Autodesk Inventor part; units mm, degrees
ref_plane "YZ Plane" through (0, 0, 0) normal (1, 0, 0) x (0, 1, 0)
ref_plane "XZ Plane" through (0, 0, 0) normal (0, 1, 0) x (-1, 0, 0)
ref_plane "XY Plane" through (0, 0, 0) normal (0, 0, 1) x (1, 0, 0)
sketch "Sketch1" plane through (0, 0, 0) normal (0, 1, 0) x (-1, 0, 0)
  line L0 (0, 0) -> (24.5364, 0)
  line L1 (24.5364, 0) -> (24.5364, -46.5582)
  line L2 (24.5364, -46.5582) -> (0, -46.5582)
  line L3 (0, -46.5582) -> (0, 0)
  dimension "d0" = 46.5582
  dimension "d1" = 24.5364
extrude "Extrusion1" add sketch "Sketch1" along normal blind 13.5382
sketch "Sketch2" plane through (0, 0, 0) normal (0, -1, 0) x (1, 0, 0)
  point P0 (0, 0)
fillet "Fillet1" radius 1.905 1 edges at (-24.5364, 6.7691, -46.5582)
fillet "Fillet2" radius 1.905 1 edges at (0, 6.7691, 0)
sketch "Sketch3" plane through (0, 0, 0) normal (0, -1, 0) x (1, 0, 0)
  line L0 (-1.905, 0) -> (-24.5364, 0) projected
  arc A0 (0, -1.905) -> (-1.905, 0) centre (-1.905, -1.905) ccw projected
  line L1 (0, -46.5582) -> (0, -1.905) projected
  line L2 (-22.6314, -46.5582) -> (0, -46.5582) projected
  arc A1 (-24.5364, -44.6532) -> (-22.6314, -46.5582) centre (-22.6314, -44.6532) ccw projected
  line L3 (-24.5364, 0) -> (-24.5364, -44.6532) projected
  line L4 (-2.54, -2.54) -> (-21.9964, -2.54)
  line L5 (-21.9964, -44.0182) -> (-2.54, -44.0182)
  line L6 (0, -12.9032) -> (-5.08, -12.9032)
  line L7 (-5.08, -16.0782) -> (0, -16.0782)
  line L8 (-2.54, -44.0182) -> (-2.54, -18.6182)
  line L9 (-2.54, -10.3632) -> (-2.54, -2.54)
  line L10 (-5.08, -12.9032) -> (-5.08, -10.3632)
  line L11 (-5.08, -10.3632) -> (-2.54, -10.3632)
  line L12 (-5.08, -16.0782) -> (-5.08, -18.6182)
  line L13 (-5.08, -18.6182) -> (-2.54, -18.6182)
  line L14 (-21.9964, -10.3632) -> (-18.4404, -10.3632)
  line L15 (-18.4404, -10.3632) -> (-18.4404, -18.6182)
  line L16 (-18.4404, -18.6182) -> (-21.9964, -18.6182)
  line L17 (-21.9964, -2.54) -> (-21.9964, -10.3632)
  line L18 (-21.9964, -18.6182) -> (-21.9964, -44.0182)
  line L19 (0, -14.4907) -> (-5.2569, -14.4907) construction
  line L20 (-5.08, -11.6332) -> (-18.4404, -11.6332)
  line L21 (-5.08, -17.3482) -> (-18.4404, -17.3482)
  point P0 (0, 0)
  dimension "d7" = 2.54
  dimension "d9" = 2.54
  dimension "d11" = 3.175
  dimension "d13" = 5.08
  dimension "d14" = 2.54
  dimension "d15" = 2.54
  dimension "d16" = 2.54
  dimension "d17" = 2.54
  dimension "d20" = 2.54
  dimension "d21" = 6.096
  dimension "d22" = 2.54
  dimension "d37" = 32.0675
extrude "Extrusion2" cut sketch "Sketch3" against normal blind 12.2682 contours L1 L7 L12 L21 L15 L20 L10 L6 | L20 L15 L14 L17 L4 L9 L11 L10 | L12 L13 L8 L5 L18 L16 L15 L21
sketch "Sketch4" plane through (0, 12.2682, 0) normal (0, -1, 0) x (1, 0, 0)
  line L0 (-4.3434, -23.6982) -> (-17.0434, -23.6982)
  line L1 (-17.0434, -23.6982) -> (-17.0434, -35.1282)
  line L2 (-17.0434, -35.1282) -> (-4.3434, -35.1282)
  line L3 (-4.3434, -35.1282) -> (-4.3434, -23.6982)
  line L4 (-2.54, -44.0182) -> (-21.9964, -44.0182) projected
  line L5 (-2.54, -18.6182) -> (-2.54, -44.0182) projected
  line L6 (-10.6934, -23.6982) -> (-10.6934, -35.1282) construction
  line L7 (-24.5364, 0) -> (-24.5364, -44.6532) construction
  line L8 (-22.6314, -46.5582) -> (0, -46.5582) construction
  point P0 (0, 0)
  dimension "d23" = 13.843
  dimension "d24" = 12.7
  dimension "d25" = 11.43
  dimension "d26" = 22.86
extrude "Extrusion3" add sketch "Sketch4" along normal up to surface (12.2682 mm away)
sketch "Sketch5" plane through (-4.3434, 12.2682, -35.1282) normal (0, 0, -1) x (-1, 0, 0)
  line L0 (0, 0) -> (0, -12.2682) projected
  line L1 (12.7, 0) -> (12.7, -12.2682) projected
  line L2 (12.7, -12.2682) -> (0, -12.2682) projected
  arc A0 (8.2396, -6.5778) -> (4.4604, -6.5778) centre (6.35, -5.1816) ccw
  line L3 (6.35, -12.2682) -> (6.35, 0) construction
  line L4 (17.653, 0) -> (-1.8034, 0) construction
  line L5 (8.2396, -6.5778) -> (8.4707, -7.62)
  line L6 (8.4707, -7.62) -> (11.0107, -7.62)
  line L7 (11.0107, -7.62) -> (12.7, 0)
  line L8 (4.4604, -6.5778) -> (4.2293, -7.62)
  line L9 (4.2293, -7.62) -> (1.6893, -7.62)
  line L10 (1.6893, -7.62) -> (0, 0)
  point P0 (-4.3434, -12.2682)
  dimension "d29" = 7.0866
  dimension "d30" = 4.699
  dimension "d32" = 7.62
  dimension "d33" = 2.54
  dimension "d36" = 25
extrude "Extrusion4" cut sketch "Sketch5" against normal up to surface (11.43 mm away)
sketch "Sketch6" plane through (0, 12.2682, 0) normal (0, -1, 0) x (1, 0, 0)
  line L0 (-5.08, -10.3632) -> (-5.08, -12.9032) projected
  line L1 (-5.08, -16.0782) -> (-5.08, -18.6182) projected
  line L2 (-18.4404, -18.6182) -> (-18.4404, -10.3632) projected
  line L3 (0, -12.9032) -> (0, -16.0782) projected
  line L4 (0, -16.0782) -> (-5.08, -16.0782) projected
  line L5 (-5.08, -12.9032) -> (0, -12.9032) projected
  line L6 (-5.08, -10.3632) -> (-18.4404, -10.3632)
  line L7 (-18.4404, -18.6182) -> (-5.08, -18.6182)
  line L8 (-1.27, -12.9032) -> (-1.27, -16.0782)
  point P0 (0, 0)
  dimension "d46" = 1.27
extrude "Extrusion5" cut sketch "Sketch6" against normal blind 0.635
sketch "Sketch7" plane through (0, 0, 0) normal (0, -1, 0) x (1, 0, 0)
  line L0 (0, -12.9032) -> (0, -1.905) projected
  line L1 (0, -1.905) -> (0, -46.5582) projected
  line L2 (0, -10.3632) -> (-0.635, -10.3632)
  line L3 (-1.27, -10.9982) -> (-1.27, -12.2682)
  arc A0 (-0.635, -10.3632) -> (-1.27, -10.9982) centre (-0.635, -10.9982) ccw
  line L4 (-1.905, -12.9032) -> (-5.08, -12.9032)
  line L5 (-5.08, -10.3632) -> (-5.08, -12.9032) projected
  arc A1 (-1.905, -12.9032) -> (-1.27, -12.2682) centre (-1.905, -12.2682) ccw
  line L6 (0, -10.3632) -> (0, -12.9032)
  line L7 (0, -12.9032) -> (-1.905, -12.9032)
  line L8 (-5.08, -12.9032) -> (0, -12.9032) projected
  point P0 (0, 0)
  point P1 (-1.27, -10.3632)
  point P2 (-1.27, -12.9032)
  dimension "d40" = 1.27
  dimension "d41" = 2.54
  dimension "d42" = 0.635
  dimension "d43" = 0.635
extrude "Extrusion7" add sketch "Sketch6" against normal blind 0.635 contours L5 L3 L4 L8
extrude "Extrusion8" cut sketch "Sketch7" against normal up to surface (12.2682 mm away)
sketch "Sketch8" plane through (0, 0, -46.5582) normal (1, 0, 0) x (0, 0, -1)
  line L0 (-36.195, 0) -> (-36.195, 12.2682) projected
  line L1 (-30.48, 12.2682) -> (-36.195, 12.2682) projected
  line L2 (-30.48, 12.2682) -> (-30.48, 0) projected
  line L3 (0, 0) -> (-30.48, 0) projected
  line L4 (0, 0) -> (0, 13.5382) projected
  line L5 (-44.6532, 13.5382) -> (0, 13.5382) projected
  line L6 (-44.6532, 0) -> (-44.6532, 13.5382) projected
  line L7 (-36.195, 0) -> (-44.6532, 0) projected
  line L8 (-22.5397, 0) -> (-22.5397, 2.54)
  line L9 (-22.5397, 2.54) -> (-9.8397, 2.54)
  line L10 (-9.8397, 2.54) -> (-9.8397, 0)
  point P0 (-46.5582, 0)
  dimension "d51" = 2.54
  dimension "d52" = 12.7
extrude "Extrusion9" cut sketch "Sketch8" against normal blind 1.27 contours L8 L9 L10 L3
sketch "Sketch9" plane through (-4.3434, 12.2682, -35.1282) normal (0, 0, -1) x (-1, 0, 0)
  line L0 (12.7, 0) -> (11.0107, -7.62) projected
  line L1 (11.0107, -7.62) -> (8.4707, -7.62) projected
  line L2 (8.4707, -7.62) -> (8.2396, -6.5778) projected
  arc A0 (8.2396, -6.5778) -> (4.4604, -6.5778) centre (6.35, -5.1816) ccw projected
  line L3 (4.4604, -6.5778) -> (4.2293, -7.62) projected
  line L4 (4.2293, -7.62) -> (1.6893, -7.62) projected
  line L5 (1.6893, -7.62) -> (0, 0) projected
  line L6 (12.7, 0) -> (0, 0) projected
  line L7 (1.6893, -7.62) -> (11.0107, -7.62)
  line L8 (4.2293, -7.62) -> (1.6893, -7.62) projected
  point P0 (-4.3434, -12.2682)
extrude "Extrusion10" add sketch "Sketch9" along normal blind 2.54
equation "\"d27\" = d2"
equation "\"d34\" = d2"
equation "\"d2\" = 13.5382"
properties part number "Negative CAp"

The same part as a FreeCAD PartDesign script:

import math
import FreeCAD as App
import Part
import Sketcher
from FreeCAD import Vector
Q = App.Units.Quantity


def edges_at(feature, points):
    """Names of the edges that pass closest to the given points."""
    edges = feature.Shape.Edges
    near = lambda p: min(range(len(edges)), key=lambda i: edges[i].distToShape(Part.Vertex(*p))[0])
    return sorted({f"Edge{near(p) + 1}" for p in points})

doc = App.newDocument("Part")
body = doc.addObject("PartDesign::Body", "Body")

# Sketch on XZ plane
sketch1 = doc.addObject("Sketcher::SketchObject", "Sketch")
body.addObject(sketch1)
sketch1.AttachmentSupport = (doc.XZ_Plane, [""])
sketch1.MapMode = "FlatFace"
sketch1.addGeometry([
    Part.LineSegment(Vector(-25, 0, 0), Vector(0, 0, 0)),
    Part.LineSegment(Vector(0, 0, 0), Vector(0, -47, 0)),
    Part.LineSegment(Vector(0, -47, 0), Vector(-25, -47, 0)),
    Part.LineSegment(Vector(-25, -47, 0), Vector(-25, 0, 0)),
], False)
sketch1.addConstraint([
    Sketcher.Constraint("Coincident", 0, 2, 1, 1),
    Sketcher.Constraint("Coincident", 1, 2, 2, 1),
    Sketcher.Constraint("Coincident", 2, 2, 3, 1),
    Sketcher.Constraint("Coincident", 3, 2, 0, 1),
    Sketcher.Constraint("Horizontal", 0),
    Sketcher.Constraint("Vertical", 1),
    Sketcher.Constraint("Horizontal", 2),
    Sketcher.Constraint("Vertical", 3),
    Sketcher.Constraint("Coincident", 0, 2, -1, 1),
    Sketcher.Constraint("DistanceX", 0, 1, 0, 2, Q("0.966 in")),
    Sketcher.Constraint("DistanceY", 1, 2, 1, 1, Q("1.833 in")),
])
pad1 = doc.addObject("PartDesign::Pad", "Pad")
body.addObject(pad1)
pad1.Profile = sketch1
pad1.Length = Q("0.533 in")
pad1.Reversed = True
doc.recompute()

fillet = doc.addObject("PartDesign::Fillet", "Fillet")
body.addObject(fillet)
fillet.Base = (pad1, edges_at(pad1, [(-24.536, 6.769, -46.558)]))
fillet.Radius = Q("0.075 in")
doc.recompute()

fillet2 = doc.addObject("PartDesign::Fillet", "Fillet001")
body.addObject(fillet2)
fillet2.Base = (fillet, edges_at(fillet, [(0, 6.769, 0)]))
fillet2.Radius = Q("0.075 in")

# Sketch on XZ plane
sketch2 = doc.addObject("Sketcher::SketchObject", "Sketch001")
body.addObject(sketch2)
sketch2.AttachmentSupport = (doc.XZ_Plane, [""])
sketch2.MapMode = "FlatFace"
sketch2.addGeometry([
    Part.LineSegment(Vector(0, -16.1, 0), Vector(0, -12.9, 0)),  # 0
    Part.LineSegment(Vector(0, -12.9, 0), Vector(-5.1, -12.9, 0)),  # 1
    Part.LineSegment(Vector(-5.1, -12.9, 0), Vector(-5.1, -10.4, 0)),  # 2
    Part.LineSegment(Vector(-5.1, -10.4, 0), Vector(-2.5, -10.4, 0)),  # 3
    Part.LineSegment(Vector(-2.5, -10.4, 0), Vector(-2.5, -2.5, 0)),  # 4
    Part.LineSegment(Vector(-2.5, -2.5, 0), Vector(-22, -2.5, 0)),  # 5
    Part.LineSegment(Vector(-22, -2.5, 0), Vector(-22, -10.4, 0)),  # 6
    Part.LineSegment(Vector(-22, -10.4, 0), Vector(-18.4, -10.4, 0)),  # 7
    Part.LineSegment(Vector(-18.4, -10.4, 0), Vector(-18.4, -18.6, 0)),  # 8
    Part.LineSegment(Vector(-18.4, -18.6, 0), Vector(-22, -18.6, 0)),  # 9
    Part.LineSegment(Vector(-22, -18.6, 0), Vector(-22, -44, 0)),  # 10
    Part.LineSegment(Vector(-22, -44, 0), Vector(-2.5, -44, 0)),  # 11
    Part.LineSegment(Vector(-2.5, -44, 0), Vector(-2.5, -18.6, 0)),  # 12
    Part.LineSegment(Vector(-2.5, -18.6, 0), Vector(-5.1, -18.6, 0)),  # 13
    Part.LineSegment(Vector(-5.1, -18.6, 0), Vector(-5.1, -16.1, 0)),  # 14
    Part.LineSegment(Vector(-5.1, -16.1, 0), Vector(0, -16.1, 0)),  # 15
], False)
sketch2.addConstraint([
    Sketcher.Constraint("Coincident", 0, 2, 1, 1),
    Sketcher.Constraint("Coincident", 1, 2, 2, 1),
    Sketcher.Constraint("Coincident", 2, 2, 3, 1),
    Sketcher.Constraint("Coincident", 3, 2, 4, 1),
    Sketcher.Constraint("Coincident", 4, 2, 5, 1),
    Sketcher.Constraint("Coincident", 5, 2, 6, 1),
    Sketcher.Constraint("Coincident", 6, 2, 7, 1),
    Sketcher.Constraint("Coincident", 7, 2, 8, 1),
    Sketcher.Constraint("Coincident", 8, 2, 9, 1),
    Sketcher.Constraint("Coincident", 9, 2, 10, 1),
    Sketcher.Constraint("Coincident", 10, 2, 11, 1),
    Sketcher.Constraint("Coincident", 11, 2, 12, 1),
    Sketcher.Constraint("Coincident", 12, 2, 13, 1),
    Sketcher.Constraint("Coincident", 13, 2, 14, 1),
    Sketcher.Constraint("Coincident", 14, 2, 15, 1),
    Sketcher.Constraint("Coincident", 15, 2, 0, 1),
    Sketcher.Constraint("Vertical", 0),
    Sketcher.Constraint("Horizontal", 1),
    Sketcher.Constraint("Vertical", 2),
    Sketcher.Constraint("Horizontal", 3),
    Sketcher.Constraint("Vertical", 4),
    Sketcher.Constraint("Horizontal", 5),
    Sketcher.Constraint("Vertical", 6),
    Sketcher.Constraint("Horizontal", 7),
    Sketcher.Constraint("Vertical", 8),
    Sketcher.Constraint("Horizontal", 9),
    Sketcher.Constraint("Vertical", 10),
    Sketcher.Constraint("Horizontal", 11),
    Sketcher.Constraint("Vertical", 12),
    Sketcher.Constraint("Horizontal", 13),
    Sketcher.Constraint("Vertical", 14),
    Sketcher.Constraint("Horizontal", 15),
    Sketcher.Constraint("PointOnObject", 0, 2, -2),
    Sketcher.Constraint("Horizontal", 3, 2, 6, 2),
    Sketcher.Constraint("Horizontal", 9, 2, 12, 2),
    Sketcher.Constraint("Vertical", 6, 2, 9, 2),
    Sketcher.Constraint("Vertical", 4, 2, 11, 2),
    Sketcher.Constraint("Vertical", 2, 2, 13, 2),
    Sketcher.Constraint("Equal", 13, 2),
    Sketcher.Constraint("Equal", 2, 14),
    Sketcher.Constraint("DistanceX", 1, 2, 1, 1, Q("0.2 in")),
    Sketcher.Constraint("DistanceX", 3, 1, 3, 2, Q("0.1 in")),
    Sketcher.Constraint("DistanceY", 4, 2, -1, 1, Q("0.1 in")),
    Sketcher.Constraint("DistanceY", 0, 1, 0, 2, Q("0.125 in")),
    Sketcher.Constraint("DistanceY", 10, 2, 10, 1, Q("1 in")),
    Sketcher.Constraint("DistanceX", 7, 1, 7, 2, Q("0.14 in")),
    Sketcher.Constraint("DistanceX", 5, 2, 5, 1, Q("0.766 in")),
    Sketcher.Constraint("DistanceY", 4, 1, 4, 2, Q("0.308 in")),
])
pocket1 = doc.addObject("PartDesign::Pocket", "Pocket")
body.addObject(pocket1)
pocket1.Profile = sketch2
pocket1.Length = Q("0.483 in")

# Sketch on XZ plane
sketch3 = doc.addObject("Sketcher::SketchObject", "Sketch002")
body.addObject(sketch3)
sketch3.AttachmentSupport = (doc.XZ_Plane, [""])
sketch3.MapMode = "FlatFace"
sketch3.AttachmentOffset = App.Placement(Vector(0, 0, -0.483 * 25.4), App.Rotation())
sketch3.addGeometry([
    Part.LineSegment(Vector(-4, -35, 0), Vector(-4, -24, 0)),
    Part.LineSegment(Vector(-4, -24, 0), Vector(-17, -24, 0)),
    Part.LineSegment(Vector(-17, -24, 0), Vector(-17, -35, 0)),
    Part.LineSegment(Vector(-17, -35, 0), Vector(-4, -35, 0)),
], False)
sketch3.addConstraint([
    Sketcher.Constraint("Coincident", 0, 2, 1, 1),
    Sketcher.Constraint("Coincident", 1, 2, 2, 1),
    Sketcher.Constraint("Coincident", 2, 2, 3, 1),
    Sketcher.Constraint("Coincident", 3, 2, 0, 1),
    Sketcher.Constraint("Vertical", 0),
    Sketcher.Constraint("Horizontal", 1),
    Sketcher.Constraint("Vertical", 2),
    Sketcher.Constraint("Horizontal", 3),
    Sketcher.Constraint("DistanceX", 1, 2, 1, 1, Q("0.5 in")),
    Sketcher.Constraint("DistanceY", 0, 1, 0, 2, Q("0.45 in")),
    Sketcher.Constraint("DistanceX", 0, 2, -1, 1, Q("0.171 in")),
    Sketcher.Constraint("DistanceY", 0, 2, -1, 1, Q("0.933 in")),
])
pad2 = doc.addObject("PartDesign::Pad", "Pad001")
body.addObject(pad2)
pad2.Profile = sketch3
pad2.Length = Q("0.483 in")

# Sketch on XY plane
sketch4 = doc.addObject("Sketcher::SketchObject", "Sketch003")
body.addObject(sketch4)
sketch4.AttachmentSupport = (doc.XY_Plane, [""])
sketch4.MapMode = "FlatFace"
sketch4.AttachmentOffset = App.Placement(Vector(0, 0, -1.383 * 25.4), App.Rotation())
sketch4.addGeometry([
    Part.LineSegment(Vector(-6, 4.6, 0), Vector(-4.3, 12.3, 0)),  # 0
    Part.LineSegment(Vector(-4.3, 12.3, 0), Vector(-4.3, 0, 0)),  # 1
    Part.LineSegment(Vector(-4.3, 0, 0), Vector(-17, 0, 0)),  # 2
    Part.LineSegment(Vector(-17, 0, 0), Vector(-17, 12.3, 0)),  # 3
    Part.LineSegment(Vector(-17, 12.3, 0), Vector(-15.4, 4.6, 0)),  # 4
    Part.LineSegment(Vector(-15.4, 4.6, 0), Vector(-12.8, 4.6, 0)),  # 5
    Part.LineSegment(Vector(-12.8, 4.6, 0), Vector(-12.6, 5.7, 0)),  # 6
    Part.ArcOfCircle(Part.Circle(Vector(-10.7, 7.1, 0), Vector(0, 0, 1), 2.3), math.radians(-36), math.radians(216)),  # 7
    Part.LineSegment(Vector(-8.8, 5.7, 0), Vector(-8.6, 4.6, 0)),  # 8
    Part.LineSegment(Vector(-8.6, 4.6, 0), Vector(-6, 4.6, 0)),  # 9
], False)
sketch4.addConstraint([
    Sketcher.Constraint("Coincident", 0, 2, 1, 1),
    Sketcher.Constraint("Coincident", 1, 2, 2, 1),
    Sketcher.Constraint("Coincident", 2, 2, 3, 1),
    Sketcher.Constraint("Coincident", 3, 2, 4, 1),
    Sketcher.Constraint("Coincident", 4, 2, 5, 1),
    Sketcher.Constraint("Coincident", 5, 2, 6, 1),
    Sketcher.Constraint("Coincident", 6, 2, 7, 2),
    Sketcher.Constraint("Coincident", 7, 1, 8, 1),
    Sketcher.Constraint("Coincident", 8, 2, 9, 1),
    Sketcher.Constraint("Coincident", 9, 2, 0, 1),
    Sketcher.Constraint("Vertical", 1),
    Sketcher.Constraint("Horizontal", 2),
    Sketcher.Constraint("Vertical", 3),
    Sketcher.Constraint("Horizontal", 5),
    Sketcher.Constraint("Horizontal", 9),
    Sketcher.Constraint("PointOnObject", 1, 2, -1),
    Sketcher.Constraint("Parallel", 0, 6),
    Sketcher.Constraint("Parallel", 4, 8),
    Sketcher.Constraint("Horizontal", 0, 2, 3, 2),
    Sketcher.Constraint("Horizontal", 6, 2, 7, 1),
    Sketcher.Constraint("Horizontal", 5, 2, 8, 2),
    Sketcher.Constraint("Equal", 5, 9),
    Sketcher.Constraint("Equal", 0, 4),
    Sketcher.Constraint("DistanceX", 5, 1, 5, 2, Q("0.1 in")),
    Sketcher.Constraint("Radius", 7, Q("0.0925 in")),
    Sketcher.Constraint("DistanceY", 4, 2, 3, 2, Q("0.3 in")),
    Sketcher.Constraint("DistanceX", 2, 2, 2, 1, Q("0.5 in")),
    Sketcher.Constraint("DistanceY", -1, 1, 7, 3, Q("0.279 in")),
    Sketcher.Constraint("Angle", 0, Q("77.5 deg")),
    Sketcher.Constraint("DistanceY", 1, 2, 1, 1, Q("0.483 in")),
    Sketcher.Constraint("DistanceX", 7, 3, -1, 1, Q("0.421 in")),
])
pocket2 = doc.addObject("PartDesign::Pocket", "Pocket001")
body.addObject(pocket2)
pocket2.Profile = sketch4
pocket2.Length = Q("0.45 in")
pocket2.Reversed = True

# Sketch on XZ plane
sketch5 = doc.addObject("Sketcher::SketchObject", "Sketch004")
body.addObject(sketch5)
sketch5.AttachmentSupport = (doc.XZ_Plane, [""])
sketch5.MapMode = "FlatFace"
sketch5.AttachmentOffset = App.Placement(Vector(0, 0, -0.483 * 25.4), App.Rotation())
sketch5.addGeometry([
    Part.LineSegment(Vector(-5.1, -12.9, 0), Vector(-5.1, -10.4, 0)),  # 0
    Part.LineSegment(Vector(-5.1, -10.4, 0), Vector(-18.4, -10.4, 0)),  # 1
    Part.LineSegment(Vector(-18.4, -10.4, 0), Vector(-18.4, -18.6, 0)),  # 2
    Part.LineSegment(Vector(-18.4, -18.6, 0), Vector(-5.1, -18.6, 0)),  # 3
    Part.LineSegment(Vector(-5.1, -18.6, 0), Vector(-5.1, -16.1, 0)),  # 4
    Part.LineSegment(Vector(-5.1, -16.1, 0), Vector(0, -16.1, 0)),  # 5
    Part.LineSegment(Vector(0, -16.1, 0), Vector(0, -12.9, 0)),  # 6
    Part.LineSegment(Vector(0, -12.9, 0), Vector(-5.1, -12.9, 0)),  # 7
], False)
sketch5.addConstraint([
    Sketcher.Constraint("Coincident", 0, 2, 1, 1),
    Sketcher.Constraint("Coincident", 1, 2, 2, 1),
    Sketcher.Constraint("Coincident", 2, 2, 3, 1),
    Sketcher.Constraint("Coincident", 3, 2, 4, 1),
    Sketcher.Constraint("Coincident", 4, 2, 5, 1),
    Sketcher.Constraint("Coincident", 5, 2, 6, 1),
    Sketcher.Constraint("Coincident", 6, 2, 7, 1),
    Sketcher.Constraint("Coincident", 7, 2, 0, 1),
    Sketcher.Constraint("Vertical", 0),
    Sketcher.Constraint("Horizontal", 1),
    Sketcher.Constraint("Vertical", 2),
    Sketcher.Constraint("Horizontal", 3),
    Sketcher.Constraint("Vertical", 4),
    Sketcher.Constraint("Horizontal", 5),
    Sketcher.Constraint("Vertical", 6),
    Sketcher.Constraint("Horizontal", 7),
    Sketcher.Constraint("PointOnObject", 5, 2, -2),
    Sketcher.Constraint("Vertical", 0, 2, 3, 2),
    Sketcher.Constraint("Equal", 0, 4),
    Sketcher.Constraint("DistanceX", 5, 1, 5, 2, Q("0.2 in")),
    Sketcher.Constraint("DistanceY", 0, 1, 0, 2, Q("0.1 in")),
    Sketcher.Constraint("DistanceX", 1, 2, 1, 1, Q("0.526 in")),
    Sketcher.Constraint("DistanceY", 2, 2, 2, 1, Q("0.325 in")),
    Sketcher.Constraint("DistanceY", 0, 2, -1, 1, Q("0.408 in")),
])
pocket3 = doc.addObject("PartDesign::Pocket", "Pocket002")
body.addObject(pocket3)
pocket3.Profile = sketch5
pocket3.Length = Q("0.025 in")

# Sketch on XZ plane
sketch6 = doc.addObject("Sketcher::SketchObject", "Sketch005")
body.addObject(sketch6)
sketch6.AttachmentSupport = (doc.XZ_Plane, [""])
sketch6.MapMode = "FlatFace"
sketch6.AttachmentOffset = App.Placement(Vector(0, 0, -0.483 * 25.4), App.Rotation())
sketch6.addGeometry([
    Part.LineSegment(Vector(0, -12.9, 0), Vector(-1.3, -12.9, 0)),
    Part.LineSegment(Vector(-1.3, -12.9, 0), Vector(-1.3, -16.1, 0)),
    Part.LineSegment(Vector(-1.3, -16.1, 0), Vector(0, -16.1, 0)),
    Part.LineSegment(Vector(0, -16.1, 0), Vector(0, -12.9, 0)),
], False)
sketch6.addConstraint([
    Sketcher.Constraint("Coincident", 0, 2, 1, 1),
    Sketcher.Constraint("Coincident", 1, 2, 2, 1),
    Sketcher.Constraint("Coincident", 2, 2, 3, 1),
    Sketcher.Constraint("Coincident", 3, 2, 0, 1),
    Sketcher.Constraint("Horizontal", 0),
    Sketcher.Constraint("Vertical", 1),
    Sketcher.Constraint("Horizontal", 2),
    Sketcher.Constraint("Vertical", 3),
    Sketcher.Constraint("PointOnObject", 2, 2, -2),
    Sketcher.Constraint("DistanceX", 0, 2, 0, 1, Q("0.05 in")),
    Sketcher.Constraint("DistanceY", 1, 2, 1, 1, Q("0.125 in")),
    Sketcher.Constraint("DistanceY", 0, 2, -1, 1, Q("0.508 in")),
])
pad3 = doc.addObject("PartDesign::Pad", "Pad002")
body.addObject(pad3)
pad3.Profile = sketch6
pad3.Length = Q("0.025 in")
pad3.Reversed = True

# Sketch on XZ plane
sketch7 = doc.addObject("Sketcher::SketchObject", "Sketch006")
body.addObject(sketch7)
sketch7.AttachmentSupport = (doc.XZ_Plane, [""])
sketch7.MapMode = "FlatFace"
sketch7.addGeometry([
    Part.LineSegment(Vector(-1.9, -12.9, 0), Vector(0, -12.9, 0)),  # 0
    Part.LineSegment(Vector(0, -12.9, 0), Vector(0, -10.4, 0)),  # 1
    Part.LineSegment(Vector(0, -10.4, 0), Vector(-0.6, -10.4, 0)),  # 2
    Part.ArcOfCircle(Part.Circle(Vector(-0.6, -11, 0), Vector(0, 0, 1), 0.6), math.radians(90), math.radians(180)),  # 3
    Part.LineSegment(Vector(-1.3, -11, 0), Vector(-1.3, -12.3, 0)),  # 4
    Part.ArcOfCircle(Part.Circle(Vector(-1.9, -12.3, 0), Vector(0, 0, 1), 0.6), math.radians(-90), math.radians(0)),  # 5
], False)
sketch7.addConstraint([
    Sketcher.Constraint("Coincident", 0, 2, 1, 1),
    Sketcher.Constraint("Coincident", 1, 2, 2, 1),
    Sketcher.Constraint("Tangent", 2, 2, 3, 1),
    Sketcher.Constraint("Tangent", 3, 2, 4, 1),
    Sketcher.Constraint("Tangent", 4, 2, 5, 2),
    Sketcher.Constraint("Tangent", 5, 1, 0, 1),
    Sketcher.Constraint("Horizontal", 0),
    Sketcher.Constraint("Vertical", 1),
    Sketcher.Constraint("Horizontal", 2),
    Sketcher.Constraint("Vertical", 4),
    Sketcher.Constraint("Equal", 3, 5),
    Sketcher.Constraint("PointOnObject", 0, 2, -2),
    Sketcher.Constraint("DistanceY", 1, 1, 1, 2, Q("0.1 in")),
    Sketcher.Constraint("Radius", 3, Q("0.025 in")),
    Sketcher.Constraint("DistanceX", 2, 2, 2, 1, Q("0.025 in")),
    Sketcher.Constraint("DistanceY", 3, 3, -1, 1, Q("0.433 in")),
])
pocket4 = doc.addObject("PartDesign::Pocket", "Pocket003")
body.addObject(pocket4)
pocket4.Profile = sketch7
pocket4.Length = Q("0.483 in")

# Sketch on YZ plane
sketch8 = doc.addObject("Sketcher::SketchObject", "Sketch007")
body.addObject(sketch8)
sketch8.AttachmentSupport = (doc.YZ_Plane, [""])
sketch8.MapMode = "FlatFace"
sketch8.addGeometry([
    Part.LineSegment(Vector(2.5, -24, 0), Vector(0, -24, 0)),
    Part.LineSegment(Vector(0, -24, 0), Vector(0, -36.7, 0)),
    Part.LineSegment(Vector(0, -36.7, 0), Vector(2.5, -36.7, 0)),
    Part.LineSegment(Vector(2.5, -36.7, 0), Vector(2.5, -24, 0)),
], False)
sketch8.addConstraint([
    Sketcher.Constraint("Coincident", 0, 2, 1, 1),
    Sketcher.Constraint("Coincident", 1, 2, 2, 1),
    Sketcher.Constraint("Coincident", 2, 2, 3, 1),
    Sketcher.Constraint("Coincident", 3, 2, 0, 1),
    Sketcher.Constraint("Horizontal", 0),
    Sketcher.Constraint("Vertical", 1),
    Sketcher.Constraint("Horizontal", 2),
    Sketcher.Constraint("Vertical", 3),
    Sketcher.Constraint("PointOnObject", 0, 2, -2),
    Sketcher.Constraint("DistanceX", 0, 2, 0, 1, Q("0.1 in")),
    Sketcher.Constraint("DistanceY", 1, 2, 1, 1, Q("0.5 in")),
    Sketcher.Constraint("DistanceY", 0, 2, -1, 1, Q("0.9456 in")),
])
pocket5 = doc.addObject("PartDesign::Pocket", "Pocket004")
body.addObject(pocket5)
pocket5.Profile = sketch8
pocket5.Length = Q("0.05 in")

# Sketch on XY plane
sketch9 = doc.addObject("Sketcher::SketchObject", "Sketch008")
body.addObject(sketch9)
sketch9.AttachmentSupport = (doc.XY_Plane, [""])
sketch9.MapMode = "FlatFace"
sketch9.AttachmentOffset = App.Placement(Vector(0, 0, -1.383 * 25.4), App.Rotation())
sketch9.addGeometry([
    Part.LineSegment(Vector(-15, 5, 0), Vector(-17, 12, 0)),
    Part.LineSegment(Vector(-17, 12, 0), Vector(-4, 12, 0)),
    Part.LineSegment(Vector(-4, 12, 0), Vector(-6, 5, 0)),
    Part.LineSegment(Vector(-6, 5, 0), Vector(-15, 5, 0)),
], False)
sketch9.addConstraint([
    Sketcher.Constraint("Coincident", 0, 2, 1, 1),
    Sketcher.Constraint("Coincident", 1, 2, 2, 1),
    Sketcher.Constraint("Coincident", 2, 2, 3, 1),
    Sketcher.Constraint("Coincident", 3, 2, 0, 1),
    Sketcher.Constraint("Horizontal", 1),
    Sketcher.Constraint("Horizontal", 3),
    Sketcher.Constraint("Equal", 0, 2),
    Sketcher.Constraint("DistanceX", 1, 1, 1, 2, Q("0.5 in")),
    Sketcher.Constraint("Angle", 0, Q("102.5 deg")),
    Sketcher.Constraint("DistanceY", 2, 2, 1, 2, Q("0.3 in")),
    Sketcher.Constraint("DistanceX", 0, 2, -1, 1, Q("0.671 in")),
    Sketcher.Constraint("DistanceY", -1, 1, 0, 2, Q("0.483 in")),
])
pad4 = doc.addObject("PartDesign::Pad", "Pad003")
body.addObject(pad4)
pad4.Profile = sketch9
pad4.Length = Q("0.1 in")
pad4.Reversed = True

doc.recompute()
